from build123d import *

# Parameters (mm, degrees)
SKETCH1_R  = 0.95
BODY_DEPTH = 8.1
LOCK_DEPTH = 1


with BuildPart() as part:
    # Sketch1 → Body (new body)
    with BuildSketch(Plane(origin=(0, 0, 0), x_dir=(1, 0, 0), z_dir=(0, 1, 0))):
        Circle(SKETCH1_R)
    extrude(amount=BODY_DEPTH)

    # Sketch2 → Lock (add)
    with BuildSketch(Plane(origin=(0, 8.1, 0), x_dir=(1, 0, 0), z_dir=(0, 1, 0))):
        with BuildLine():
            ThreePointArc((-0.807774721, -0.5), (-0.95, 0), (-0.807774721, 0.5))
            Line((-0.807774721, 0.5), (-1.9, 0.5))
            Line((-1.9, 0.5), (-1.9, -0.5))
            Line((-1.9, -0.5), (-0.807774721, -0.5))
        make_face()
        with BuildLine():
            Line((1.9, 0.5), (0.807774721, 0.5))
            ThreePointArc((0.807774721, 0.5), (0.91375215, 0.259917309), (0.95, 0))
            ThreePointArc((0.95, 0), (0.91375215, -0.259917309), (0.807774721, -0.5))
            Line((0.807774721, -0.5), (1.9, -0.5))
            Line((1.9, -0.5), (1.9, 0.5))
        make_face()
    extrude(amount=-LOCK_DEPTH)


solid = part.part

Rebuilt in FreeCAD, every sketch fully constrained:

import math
import FreeCAD as App
import Part
import Sketcher
from FreeCAD import Vector

doc = App.newDocument("Part")
body = doc.addObject("PartDesign::Body", "Body")

# Sketch on XZ plane
sketch1 = body.newObject("Sketcher::SketchObject", "Sketch")
sketch1.AttachmentSupport = (doc.getObject("XZ_Plane"), [""])
sketch1.MapMode = "FlatFace"
sketch1.addGeometry(Part.Circle(Vector(0, 0, 0), Vector(0, 0, 1), 0.9), False)
sketch1.addConstraint(Sketcher.Constraint("Coincident", 0, 3, -1, 1))
sketch1.addConstraint(Sketcher.Constraint("Diameter", 0, 1.9))
pad1 = body.newObject("PartDesign::Pad", "Pad")
pad1.Profile = sketch1
pad1.Length = 8.1
pad1.Reversed = True

# Sketch on XZ plane
sketch2 = body.newObject("Sketcher::SketchObject", "Sketch001")
sketch2.AttachmentSupport = (doc.getObject("XZ_Plane"), [""])
sketch2.MapMode = "FlatFace"
sketch2.AttachmentOffset = App.Placement(Vector(0, 0, -8.1), App.Rotation())
sketch2.addGeometry(Part.ArcOfCircle(Part.Circle(Vector(0, 0, 0), Vector(0, 0, 1), 0.9), math.radians(148), math.radians(212)), False)
sketch2.addGeometry(Part.LineSegment(Vector(-0.8, -0.5, 0), Vector(-1.9, -0.5, 0)), False)
sketch2.addGeometry(Part.LineSegment(Vector(-1.9, -0.5, 0), Vector(-1.9, 0.5, 0)), False)
sketch2.addGeometry(Part.LineSegment(Vector(-1.9, 0.5, 0), Vector(-0.8, 0.5, 0)), False)
sketch2.addGeometry(Part.LineSegment(Vector(1.9, -0.5, 0), Vector(0.8, -0.5, 0)), False)
sketch2.addGeometry(Part.ArcOfCircle(Part.Circle(Vector(0, 0, 0), Vector(0, 0, 1), 1), math.radians(-32), math.radians(0)), False)
sketch2.addGeometry(Part.ArcOfCircle(Part.Circle(Vector(0, 0, 0), Vector(0, 0, 1), 1), math.radians(0), math.radians(32)), False)
sketch2.addGeometry(Part.LineSegment(Vector(0.8, 0.5, 0), Vector(1.9, 0.5, 0)), False)
sketch2.addGeometry(Part.LineSegment(Vector(1.9, 0.5, 0), Vector(1.9, -0.5, 0)), False)
sketch2.addConstraint(Sketcher.Constraint("Coincident", 0, 2, 1, 1))
sketch2.addConstraint(Sketcher.Constraint("Coincident", 1, 2, 2, 1))
sketch2.addConstraint(Sketcher.Constraint("Coincident", 2, 2, 3, 1))
sketch2.addConstraint(Sketcher.Constraint("Coincident", 3, 2, 0, 1))
sketch2.addConstraint(Sketcher.Constraint("Coincident", 4, 2, 5, 1))
sketch2.addConstraint(Sketcher.Constraint("Tangent", 5, 2, 6, 1))
sketch2.addConstraint(Sketcher.Constraint("Coincident", 6, 2, 7, 1))
sketch2.addConstraint(Sketcher.Constraint("Coincident", 7, 2, 8, 1))
sketch2.addConstraint(Sketcher.Constraint("Coincident", 8, 2, 4, 1))
sketch2.addConstraint(Sketcher.Constraint("Horizontal", 1))
sketch2.addConstraint(Sketcher.Constraint("Vertical", 2))
sketch2.addConstraint(Sketcher.Constraint("Horizontal", 3))
sketch2.addConstraint(Sketcher.Constraint("Horizontal", 4))
sketch2.addConstraint(Sketcher.Constraint("Horizontal", 7))
sketch2.addConstraint(Sketcher.Constraint("Vertical", 8))
sketch2.addConstraint(Sketcher.Constraint("Coincident", 0, 3, -1, 1))
sketch2.addConstraint(Sketcher.Constraint("Coincident", 5, 3, -1, 1))
sketch2.addConstraint(Sketcher.Constraint("Equal", 0, 5))
sketch2.addConstraint(Sketcher.Constraint("Equal", 5, 6))
sketch2.addConstraint(Sketcher.Constraint("Symmetric", 1, 2, 7, 2, -1, 1))
sketch2.addConstraint(Sketcher.Constraint("PointOnObject", 5, 2, -1))
sketch2.addConstraint(Sketcher.Constraint("Horizontal", 1, 2, 4, 2))
sketch2.addConstraint(Sketcher.Constraint("Horizontal", 3, 2, 6, 2))
sketch2.addConstraint(Sketcher.Constraint("DistanceY", 2, 1, 2, 2, 1.0))
sketch2.addConstraint(Sketcher.Constraint("Radius", 0, 0.95))
sketch2.addConstraint(Sketcher.Constraint("DistanceX", 1, 2, -1, 1, 1.9))
pad2 = body.newObject("PartDesign::Pad", "Pad001")
pad2.Profile = sketch2
pad2.Length = 1

doc.recompute()
